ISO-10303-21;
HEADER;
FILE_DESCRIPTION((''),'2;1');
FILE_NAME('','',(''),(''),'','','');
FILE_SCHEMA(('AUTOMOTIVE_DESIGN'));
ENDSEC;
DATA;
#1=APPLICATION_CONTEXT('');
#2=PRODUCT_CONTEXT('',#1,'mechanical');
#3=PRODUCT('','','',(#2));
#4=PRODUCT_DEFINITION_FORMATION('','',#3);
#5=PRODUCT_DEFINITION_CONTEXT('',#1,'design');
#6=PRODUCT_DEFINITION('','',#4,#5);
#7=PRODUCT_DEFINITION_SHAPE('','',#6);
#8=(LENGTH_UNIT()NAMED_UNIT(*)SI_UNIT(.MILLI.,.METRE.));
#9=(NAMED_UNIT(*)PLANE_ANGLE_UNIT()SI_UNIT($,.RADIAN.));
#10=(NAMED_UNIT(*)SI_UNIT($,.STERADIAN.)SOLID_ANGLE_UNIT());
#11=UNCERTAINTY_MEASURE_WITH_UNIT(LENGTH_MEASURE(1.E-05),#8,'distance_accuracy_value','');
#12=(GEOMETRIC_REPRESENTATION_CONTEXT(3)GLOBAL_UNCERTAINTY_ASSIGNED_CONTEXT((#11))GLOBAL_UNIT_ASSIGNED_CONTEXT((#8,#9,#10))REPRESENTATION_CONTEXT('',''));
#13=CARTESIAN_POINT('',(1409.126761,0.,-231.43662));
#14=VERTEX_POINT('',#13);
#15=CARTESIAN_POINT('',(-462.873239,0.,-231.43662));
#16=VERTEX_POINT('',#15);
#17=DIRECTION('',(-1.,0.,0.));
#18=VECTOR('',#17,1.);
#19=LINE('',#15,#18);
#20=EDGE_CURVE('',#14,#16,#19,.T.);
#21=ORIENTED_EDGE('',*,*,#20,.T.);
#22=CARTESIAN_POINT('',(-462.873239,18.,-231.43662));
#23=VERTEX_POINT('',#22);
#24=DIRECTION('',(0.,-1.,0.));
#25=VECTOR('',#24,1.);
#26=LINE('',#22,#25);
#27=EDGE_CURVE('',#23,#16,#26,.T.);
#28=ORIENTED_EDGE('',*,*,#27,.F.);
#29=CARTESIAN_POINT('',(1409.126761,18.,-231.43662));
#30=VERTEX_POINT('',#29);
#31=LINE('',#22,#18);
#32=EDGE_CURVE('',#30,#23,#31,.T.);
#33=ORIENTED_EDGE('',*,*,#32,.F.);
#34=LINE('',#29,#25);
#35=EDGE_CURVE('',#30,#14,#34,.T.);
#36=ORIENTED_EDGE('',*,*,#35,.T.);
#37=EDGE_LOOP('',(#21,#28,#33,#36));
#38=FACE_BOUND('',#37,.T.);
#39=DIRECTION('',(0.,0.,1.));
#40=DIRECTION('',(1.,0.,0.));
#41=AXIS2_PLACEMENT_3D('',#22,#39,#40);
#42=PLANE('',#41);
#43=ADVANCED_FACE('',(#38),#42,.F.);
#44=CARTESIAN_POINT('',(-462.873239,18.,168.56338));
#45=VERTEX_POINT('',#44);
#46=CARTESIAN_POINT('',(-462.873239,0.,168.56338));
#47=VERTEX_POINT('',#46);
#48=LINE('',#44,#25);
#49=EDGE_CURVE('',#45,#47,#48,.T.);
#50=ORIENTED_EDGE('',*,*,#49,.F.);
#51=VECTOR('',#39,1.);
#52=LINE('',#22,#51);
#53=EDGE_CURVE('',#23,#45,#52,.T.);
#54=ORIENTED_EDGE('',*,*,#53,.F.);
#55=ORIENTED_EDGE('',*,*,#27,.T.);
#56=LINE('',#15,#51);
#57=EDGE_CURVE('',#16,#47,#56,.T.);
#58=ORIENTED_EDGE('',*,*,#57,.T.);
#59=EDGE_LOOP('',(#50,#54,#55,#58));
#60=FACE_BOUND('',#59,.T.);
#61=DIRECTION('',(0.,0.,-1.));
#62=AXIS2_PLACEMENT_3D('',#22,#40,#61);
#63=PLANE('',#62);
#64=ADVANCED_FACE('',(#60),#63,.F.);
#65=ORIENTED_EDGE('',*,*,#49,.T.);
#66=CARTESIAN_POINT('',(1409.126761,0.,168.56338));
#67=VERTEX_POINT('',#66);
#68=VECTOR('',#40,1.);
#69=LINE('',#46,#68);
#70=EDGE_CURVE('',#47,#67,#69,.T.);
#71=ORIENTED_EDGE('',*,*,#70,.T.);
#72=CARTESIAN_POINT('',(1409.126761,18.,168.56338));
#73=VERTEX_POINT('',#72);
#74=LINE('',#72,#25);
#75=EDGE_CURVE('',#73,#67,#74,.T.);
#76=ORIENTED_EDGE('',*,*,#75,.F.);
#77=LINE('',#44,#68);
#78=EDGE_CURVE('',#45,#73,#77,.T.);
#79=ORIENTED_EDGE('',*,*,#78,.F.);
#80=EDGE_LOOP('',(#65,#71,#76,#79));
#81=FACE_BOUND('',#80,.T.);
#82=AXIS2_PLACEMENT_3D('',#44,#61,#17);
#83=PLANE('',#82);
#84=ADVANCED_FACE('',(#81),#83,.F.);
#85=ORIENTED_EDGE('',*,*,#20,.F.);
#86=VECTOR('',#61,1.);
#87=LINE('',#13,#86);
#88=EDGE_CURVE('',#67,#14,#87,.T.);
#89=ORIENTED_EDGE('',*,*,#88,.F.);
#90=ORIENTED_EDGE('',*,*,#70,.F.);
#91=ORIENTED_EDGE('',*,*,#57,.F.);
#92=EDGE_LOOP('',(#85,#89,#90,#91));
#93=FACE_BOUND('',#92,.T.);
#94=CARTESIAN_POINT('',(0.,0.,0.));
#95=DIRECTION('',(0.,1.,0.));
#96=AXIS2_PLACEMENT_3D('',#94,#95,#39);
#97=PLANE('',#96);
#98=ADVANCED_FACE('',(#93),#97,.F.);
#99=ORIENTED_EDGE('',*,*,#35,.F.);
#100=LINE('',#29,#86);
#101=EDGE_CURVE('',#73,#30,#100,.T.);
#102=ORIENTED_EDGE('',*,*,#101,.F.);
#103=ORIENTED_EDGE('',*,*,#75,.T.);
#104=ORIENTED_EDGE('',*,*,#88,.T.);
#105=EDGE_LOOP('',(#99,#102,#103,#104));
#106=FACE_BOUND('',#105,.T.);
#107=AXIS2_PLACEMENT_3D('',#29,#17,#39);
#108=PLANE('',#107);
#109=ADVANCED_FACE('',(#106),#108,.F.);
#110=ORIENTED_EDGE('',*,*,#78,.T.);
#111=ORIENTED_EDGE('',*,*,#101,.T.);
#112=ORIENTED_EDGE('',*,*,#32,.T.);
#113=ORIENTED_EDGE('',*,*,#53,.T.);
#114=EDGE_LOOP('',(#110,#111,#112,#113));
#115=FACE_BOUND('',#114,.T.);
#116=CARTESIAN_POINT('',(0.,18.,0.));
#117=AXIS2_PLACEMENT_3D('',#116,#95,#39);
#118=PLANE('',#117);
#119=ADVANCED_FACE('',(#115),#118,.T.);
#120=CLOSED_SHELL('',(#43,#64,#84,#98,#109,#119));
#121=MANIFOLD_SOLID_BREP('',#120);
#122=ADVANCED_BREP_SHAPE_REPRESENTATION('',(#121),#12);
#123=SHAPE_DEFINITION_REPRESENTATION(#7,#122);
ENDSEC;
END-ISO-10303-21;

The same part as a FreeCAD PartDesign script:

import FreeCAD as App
import Part
import Sketcher
Q = App.Units.Quantity

doc = App.newDocument("Part")
body = doc.addObject("PartDesign::Body", "Body")

# Sketch on XZ plane
sketch1 = doc.addObject("Sketcher::SketchObject", "Sketch")
body.addObject(sketch1)
sketch1.AttachmentSupport = (doc.XZ_Plane, [""])
sketch1.MapMode = "FlatFace"
sketch1.addGeometry([
    Part.LineSegment(App.Vector(-462.873239, -231.43662, 0), App.Vector(-462.873239, 168.56338, 0)),
    Part.LineSegment(App.Vector(-462.873239, 168.56338, 0), App.Vector(1409.126761, 168.56338, 0)),
    Part.LineSegment(App.Vector(1409.126761, 168.56338, 0), App.Vector(1409.126761, -231.43662, 0)),
    Part.LineSegment(App.Vector(1409.126761, -231.43662, 0), App.Vector(-462.873239, -231.43662, 0)),
], False)
sketch1.addConstraint([
    Sketcher.Constraint("Coincident", 0, 2, 1, 1),
    Sketcher.Constraint("Coincident", 1, 2, 2, 1),
    Sketcher.Constraint("Coincident", 2, 2, 3, 1),
    Sketcher.Constraint("Coincident", 3, 2, 0, 1),
    Sketcher.Constraint("Vertical", 0),
    Sketcher.Constraint("Horizontal", 1),
    Sketcher.Constraint("Vertical", 2),
    Sketcher.Constraint("Horizontal", 3),
    Sketcher.Constraint("DistanceX", 1, 1, 1, 2, Q("1872 mm")),
    Sketcher.Constraint("DistanceY", 0, 1, 0, 2, Q("400 mm")),
    Sketcher.Constraint("DistanceX", 0, 2, -1, 1, Q("462.873239 mm")),
    Sketcher.Constraint("DistanceY", -1, 1, 0, 2, Q("168.56338 mm")),
])
pad1 = doc.addObject("PartDesign::Pad", "Pad")
body.addObject(pad1)
pad1.Profile = sketch1
pad1.Length = 18
pad1.Reversed = True

doc.recompute()
